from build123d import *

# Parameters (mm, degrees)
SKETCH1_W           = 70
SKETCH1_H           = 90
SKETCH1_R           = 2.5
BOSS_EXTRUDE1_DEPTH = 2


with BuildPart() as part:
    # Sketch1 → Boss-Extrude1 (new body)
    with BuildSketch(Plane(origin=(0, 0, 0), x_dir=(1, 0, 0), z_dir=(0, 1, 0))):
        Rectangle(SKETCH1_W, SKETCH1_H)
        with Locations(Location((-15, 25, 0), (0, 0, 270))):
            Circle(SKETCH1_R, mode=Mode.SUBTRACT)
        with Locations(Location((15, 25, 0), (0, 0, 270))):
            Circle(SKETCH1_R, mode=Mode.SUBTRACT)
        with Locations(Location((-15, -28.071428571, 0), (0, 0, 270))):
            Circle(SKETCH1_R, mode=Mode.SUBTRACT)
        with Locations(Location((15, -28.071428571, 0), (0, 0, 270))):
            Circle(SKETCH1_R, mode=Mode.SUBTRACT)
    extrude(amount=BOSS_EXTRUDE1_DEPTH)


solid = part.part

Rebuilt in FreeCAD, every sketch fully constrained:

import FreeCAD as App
import Part
import Sketcher

V = App.Vector
Q = App.Units.Quantity


def add_polygon(sketch, points):
    """Adds a closed chain of lines whose ends are joined by coincident constraints."""
    first, n = sketch.GeometryCount, len(points)
    for a, b in zip(points, points[1:] + points[:1]):
        sketch.addGeometry(Part.LineSegment(App.Vector(*a, 0), App.Vector(*b, 0)), False)
    for i in range(n):
        sketch.addConstraint(Sketcher.Constraint("Coincident", first + i, 2, first + (i + 1) % n, 1))

doc = App.newDocument("Part")
body = doc.addObject("PartDesign::Body", "Body")

sketch1 = body.newObject("Sketcher::SketchObject", "Sketch")
sketch1.AttachmentSupport = (doc.getObject("XZ_Plane"), [""])
sketch1.MapMode = "FlatFace"
add_polygon(sketch1, [(-35, -45), (-35, 45), (35, 45), (35, -45)])
sketch1.addGeometry(Part.Circle(V(-15, 28.071429, 0), V(0, 0, 1), 2.5), False)
sketch1.addGeometry(Part.Circle(V(15, 28.071429, 0), V(0, 0, 1), 2.5), False)
sketch1.addGeometry(Part.Circle(V(-15, -25, 0), V(0, 0, 1), 2.5), False)
sketch1.addGeometry(Part.Circle(V(15, -25, 0), V(0, 0, 1), 2.5), False)
sketch1.addConstraint(Sketcher.Constraint("Vertical", 0))
sketch1.addConstraint(Sketcher.Constraint("Horizontal", 1))
sketch1.addConstraint(Sketcher.Constraint("Vertical", 2))
sketch1.addConstraint(Sketcher.Constraint("Horizontal", 3))
sketch1.addConstraint(Sketcher.Constraint("Equal", 4, 5))
sketch1.addConstraint(Sketcher.Constraint("Equal", 5, 6))
sketch1.addConstraint(Sketcher.Constraint("Equal", 6, 7))
sketch1.addConstraint(Sketcher.Constraint("Symmetric", 0, 2, 2, 2, -1, 1))
sketch1.addConstraint(Sketcher.Constraint("Symmetric", 4, 3, 5, 3, -2))
sketch1.addConstraint(Sketcher.Constraint("Symmetric", 6, 3, 7, 3, -2))
sketch1.addConstraint(Sketcher.Constraint("Vertical", 4, 3, 6, 3))
sketch1.addConstraint(Sketcher.Constraint("Diameter", 4, Q("5 mm")))
sketch1.addConstraint(Sketcher.Constraint("DistanceX", 1, 1, 1, 2, Q("70 mm")))
sketch1.addConstraint(Sketcher.Constraint("DistanceY", 0, 1, 0, 2, Q("90 mm")))
sketch1.addConstraint(Sketcher.Constraint("DistanceX", 4, 3, -1, 1, Q("15 mm")))
sketch1.addConstraint(Sketcher.Constraint("DistanceY", 6, 3, -1, 1, Q("25 mm")))
sketch1.addConstraint(Sketcher.Constraint("DistanceY", -1, 1, 4, 3, Q("28.071429 mm")))
pad1 = body.newObject("PartDesign::Pad", "Pad")
pad1.Profile = sketch1
pad1.Length = 2
pad1.Reversed = True

doc.recompute()
